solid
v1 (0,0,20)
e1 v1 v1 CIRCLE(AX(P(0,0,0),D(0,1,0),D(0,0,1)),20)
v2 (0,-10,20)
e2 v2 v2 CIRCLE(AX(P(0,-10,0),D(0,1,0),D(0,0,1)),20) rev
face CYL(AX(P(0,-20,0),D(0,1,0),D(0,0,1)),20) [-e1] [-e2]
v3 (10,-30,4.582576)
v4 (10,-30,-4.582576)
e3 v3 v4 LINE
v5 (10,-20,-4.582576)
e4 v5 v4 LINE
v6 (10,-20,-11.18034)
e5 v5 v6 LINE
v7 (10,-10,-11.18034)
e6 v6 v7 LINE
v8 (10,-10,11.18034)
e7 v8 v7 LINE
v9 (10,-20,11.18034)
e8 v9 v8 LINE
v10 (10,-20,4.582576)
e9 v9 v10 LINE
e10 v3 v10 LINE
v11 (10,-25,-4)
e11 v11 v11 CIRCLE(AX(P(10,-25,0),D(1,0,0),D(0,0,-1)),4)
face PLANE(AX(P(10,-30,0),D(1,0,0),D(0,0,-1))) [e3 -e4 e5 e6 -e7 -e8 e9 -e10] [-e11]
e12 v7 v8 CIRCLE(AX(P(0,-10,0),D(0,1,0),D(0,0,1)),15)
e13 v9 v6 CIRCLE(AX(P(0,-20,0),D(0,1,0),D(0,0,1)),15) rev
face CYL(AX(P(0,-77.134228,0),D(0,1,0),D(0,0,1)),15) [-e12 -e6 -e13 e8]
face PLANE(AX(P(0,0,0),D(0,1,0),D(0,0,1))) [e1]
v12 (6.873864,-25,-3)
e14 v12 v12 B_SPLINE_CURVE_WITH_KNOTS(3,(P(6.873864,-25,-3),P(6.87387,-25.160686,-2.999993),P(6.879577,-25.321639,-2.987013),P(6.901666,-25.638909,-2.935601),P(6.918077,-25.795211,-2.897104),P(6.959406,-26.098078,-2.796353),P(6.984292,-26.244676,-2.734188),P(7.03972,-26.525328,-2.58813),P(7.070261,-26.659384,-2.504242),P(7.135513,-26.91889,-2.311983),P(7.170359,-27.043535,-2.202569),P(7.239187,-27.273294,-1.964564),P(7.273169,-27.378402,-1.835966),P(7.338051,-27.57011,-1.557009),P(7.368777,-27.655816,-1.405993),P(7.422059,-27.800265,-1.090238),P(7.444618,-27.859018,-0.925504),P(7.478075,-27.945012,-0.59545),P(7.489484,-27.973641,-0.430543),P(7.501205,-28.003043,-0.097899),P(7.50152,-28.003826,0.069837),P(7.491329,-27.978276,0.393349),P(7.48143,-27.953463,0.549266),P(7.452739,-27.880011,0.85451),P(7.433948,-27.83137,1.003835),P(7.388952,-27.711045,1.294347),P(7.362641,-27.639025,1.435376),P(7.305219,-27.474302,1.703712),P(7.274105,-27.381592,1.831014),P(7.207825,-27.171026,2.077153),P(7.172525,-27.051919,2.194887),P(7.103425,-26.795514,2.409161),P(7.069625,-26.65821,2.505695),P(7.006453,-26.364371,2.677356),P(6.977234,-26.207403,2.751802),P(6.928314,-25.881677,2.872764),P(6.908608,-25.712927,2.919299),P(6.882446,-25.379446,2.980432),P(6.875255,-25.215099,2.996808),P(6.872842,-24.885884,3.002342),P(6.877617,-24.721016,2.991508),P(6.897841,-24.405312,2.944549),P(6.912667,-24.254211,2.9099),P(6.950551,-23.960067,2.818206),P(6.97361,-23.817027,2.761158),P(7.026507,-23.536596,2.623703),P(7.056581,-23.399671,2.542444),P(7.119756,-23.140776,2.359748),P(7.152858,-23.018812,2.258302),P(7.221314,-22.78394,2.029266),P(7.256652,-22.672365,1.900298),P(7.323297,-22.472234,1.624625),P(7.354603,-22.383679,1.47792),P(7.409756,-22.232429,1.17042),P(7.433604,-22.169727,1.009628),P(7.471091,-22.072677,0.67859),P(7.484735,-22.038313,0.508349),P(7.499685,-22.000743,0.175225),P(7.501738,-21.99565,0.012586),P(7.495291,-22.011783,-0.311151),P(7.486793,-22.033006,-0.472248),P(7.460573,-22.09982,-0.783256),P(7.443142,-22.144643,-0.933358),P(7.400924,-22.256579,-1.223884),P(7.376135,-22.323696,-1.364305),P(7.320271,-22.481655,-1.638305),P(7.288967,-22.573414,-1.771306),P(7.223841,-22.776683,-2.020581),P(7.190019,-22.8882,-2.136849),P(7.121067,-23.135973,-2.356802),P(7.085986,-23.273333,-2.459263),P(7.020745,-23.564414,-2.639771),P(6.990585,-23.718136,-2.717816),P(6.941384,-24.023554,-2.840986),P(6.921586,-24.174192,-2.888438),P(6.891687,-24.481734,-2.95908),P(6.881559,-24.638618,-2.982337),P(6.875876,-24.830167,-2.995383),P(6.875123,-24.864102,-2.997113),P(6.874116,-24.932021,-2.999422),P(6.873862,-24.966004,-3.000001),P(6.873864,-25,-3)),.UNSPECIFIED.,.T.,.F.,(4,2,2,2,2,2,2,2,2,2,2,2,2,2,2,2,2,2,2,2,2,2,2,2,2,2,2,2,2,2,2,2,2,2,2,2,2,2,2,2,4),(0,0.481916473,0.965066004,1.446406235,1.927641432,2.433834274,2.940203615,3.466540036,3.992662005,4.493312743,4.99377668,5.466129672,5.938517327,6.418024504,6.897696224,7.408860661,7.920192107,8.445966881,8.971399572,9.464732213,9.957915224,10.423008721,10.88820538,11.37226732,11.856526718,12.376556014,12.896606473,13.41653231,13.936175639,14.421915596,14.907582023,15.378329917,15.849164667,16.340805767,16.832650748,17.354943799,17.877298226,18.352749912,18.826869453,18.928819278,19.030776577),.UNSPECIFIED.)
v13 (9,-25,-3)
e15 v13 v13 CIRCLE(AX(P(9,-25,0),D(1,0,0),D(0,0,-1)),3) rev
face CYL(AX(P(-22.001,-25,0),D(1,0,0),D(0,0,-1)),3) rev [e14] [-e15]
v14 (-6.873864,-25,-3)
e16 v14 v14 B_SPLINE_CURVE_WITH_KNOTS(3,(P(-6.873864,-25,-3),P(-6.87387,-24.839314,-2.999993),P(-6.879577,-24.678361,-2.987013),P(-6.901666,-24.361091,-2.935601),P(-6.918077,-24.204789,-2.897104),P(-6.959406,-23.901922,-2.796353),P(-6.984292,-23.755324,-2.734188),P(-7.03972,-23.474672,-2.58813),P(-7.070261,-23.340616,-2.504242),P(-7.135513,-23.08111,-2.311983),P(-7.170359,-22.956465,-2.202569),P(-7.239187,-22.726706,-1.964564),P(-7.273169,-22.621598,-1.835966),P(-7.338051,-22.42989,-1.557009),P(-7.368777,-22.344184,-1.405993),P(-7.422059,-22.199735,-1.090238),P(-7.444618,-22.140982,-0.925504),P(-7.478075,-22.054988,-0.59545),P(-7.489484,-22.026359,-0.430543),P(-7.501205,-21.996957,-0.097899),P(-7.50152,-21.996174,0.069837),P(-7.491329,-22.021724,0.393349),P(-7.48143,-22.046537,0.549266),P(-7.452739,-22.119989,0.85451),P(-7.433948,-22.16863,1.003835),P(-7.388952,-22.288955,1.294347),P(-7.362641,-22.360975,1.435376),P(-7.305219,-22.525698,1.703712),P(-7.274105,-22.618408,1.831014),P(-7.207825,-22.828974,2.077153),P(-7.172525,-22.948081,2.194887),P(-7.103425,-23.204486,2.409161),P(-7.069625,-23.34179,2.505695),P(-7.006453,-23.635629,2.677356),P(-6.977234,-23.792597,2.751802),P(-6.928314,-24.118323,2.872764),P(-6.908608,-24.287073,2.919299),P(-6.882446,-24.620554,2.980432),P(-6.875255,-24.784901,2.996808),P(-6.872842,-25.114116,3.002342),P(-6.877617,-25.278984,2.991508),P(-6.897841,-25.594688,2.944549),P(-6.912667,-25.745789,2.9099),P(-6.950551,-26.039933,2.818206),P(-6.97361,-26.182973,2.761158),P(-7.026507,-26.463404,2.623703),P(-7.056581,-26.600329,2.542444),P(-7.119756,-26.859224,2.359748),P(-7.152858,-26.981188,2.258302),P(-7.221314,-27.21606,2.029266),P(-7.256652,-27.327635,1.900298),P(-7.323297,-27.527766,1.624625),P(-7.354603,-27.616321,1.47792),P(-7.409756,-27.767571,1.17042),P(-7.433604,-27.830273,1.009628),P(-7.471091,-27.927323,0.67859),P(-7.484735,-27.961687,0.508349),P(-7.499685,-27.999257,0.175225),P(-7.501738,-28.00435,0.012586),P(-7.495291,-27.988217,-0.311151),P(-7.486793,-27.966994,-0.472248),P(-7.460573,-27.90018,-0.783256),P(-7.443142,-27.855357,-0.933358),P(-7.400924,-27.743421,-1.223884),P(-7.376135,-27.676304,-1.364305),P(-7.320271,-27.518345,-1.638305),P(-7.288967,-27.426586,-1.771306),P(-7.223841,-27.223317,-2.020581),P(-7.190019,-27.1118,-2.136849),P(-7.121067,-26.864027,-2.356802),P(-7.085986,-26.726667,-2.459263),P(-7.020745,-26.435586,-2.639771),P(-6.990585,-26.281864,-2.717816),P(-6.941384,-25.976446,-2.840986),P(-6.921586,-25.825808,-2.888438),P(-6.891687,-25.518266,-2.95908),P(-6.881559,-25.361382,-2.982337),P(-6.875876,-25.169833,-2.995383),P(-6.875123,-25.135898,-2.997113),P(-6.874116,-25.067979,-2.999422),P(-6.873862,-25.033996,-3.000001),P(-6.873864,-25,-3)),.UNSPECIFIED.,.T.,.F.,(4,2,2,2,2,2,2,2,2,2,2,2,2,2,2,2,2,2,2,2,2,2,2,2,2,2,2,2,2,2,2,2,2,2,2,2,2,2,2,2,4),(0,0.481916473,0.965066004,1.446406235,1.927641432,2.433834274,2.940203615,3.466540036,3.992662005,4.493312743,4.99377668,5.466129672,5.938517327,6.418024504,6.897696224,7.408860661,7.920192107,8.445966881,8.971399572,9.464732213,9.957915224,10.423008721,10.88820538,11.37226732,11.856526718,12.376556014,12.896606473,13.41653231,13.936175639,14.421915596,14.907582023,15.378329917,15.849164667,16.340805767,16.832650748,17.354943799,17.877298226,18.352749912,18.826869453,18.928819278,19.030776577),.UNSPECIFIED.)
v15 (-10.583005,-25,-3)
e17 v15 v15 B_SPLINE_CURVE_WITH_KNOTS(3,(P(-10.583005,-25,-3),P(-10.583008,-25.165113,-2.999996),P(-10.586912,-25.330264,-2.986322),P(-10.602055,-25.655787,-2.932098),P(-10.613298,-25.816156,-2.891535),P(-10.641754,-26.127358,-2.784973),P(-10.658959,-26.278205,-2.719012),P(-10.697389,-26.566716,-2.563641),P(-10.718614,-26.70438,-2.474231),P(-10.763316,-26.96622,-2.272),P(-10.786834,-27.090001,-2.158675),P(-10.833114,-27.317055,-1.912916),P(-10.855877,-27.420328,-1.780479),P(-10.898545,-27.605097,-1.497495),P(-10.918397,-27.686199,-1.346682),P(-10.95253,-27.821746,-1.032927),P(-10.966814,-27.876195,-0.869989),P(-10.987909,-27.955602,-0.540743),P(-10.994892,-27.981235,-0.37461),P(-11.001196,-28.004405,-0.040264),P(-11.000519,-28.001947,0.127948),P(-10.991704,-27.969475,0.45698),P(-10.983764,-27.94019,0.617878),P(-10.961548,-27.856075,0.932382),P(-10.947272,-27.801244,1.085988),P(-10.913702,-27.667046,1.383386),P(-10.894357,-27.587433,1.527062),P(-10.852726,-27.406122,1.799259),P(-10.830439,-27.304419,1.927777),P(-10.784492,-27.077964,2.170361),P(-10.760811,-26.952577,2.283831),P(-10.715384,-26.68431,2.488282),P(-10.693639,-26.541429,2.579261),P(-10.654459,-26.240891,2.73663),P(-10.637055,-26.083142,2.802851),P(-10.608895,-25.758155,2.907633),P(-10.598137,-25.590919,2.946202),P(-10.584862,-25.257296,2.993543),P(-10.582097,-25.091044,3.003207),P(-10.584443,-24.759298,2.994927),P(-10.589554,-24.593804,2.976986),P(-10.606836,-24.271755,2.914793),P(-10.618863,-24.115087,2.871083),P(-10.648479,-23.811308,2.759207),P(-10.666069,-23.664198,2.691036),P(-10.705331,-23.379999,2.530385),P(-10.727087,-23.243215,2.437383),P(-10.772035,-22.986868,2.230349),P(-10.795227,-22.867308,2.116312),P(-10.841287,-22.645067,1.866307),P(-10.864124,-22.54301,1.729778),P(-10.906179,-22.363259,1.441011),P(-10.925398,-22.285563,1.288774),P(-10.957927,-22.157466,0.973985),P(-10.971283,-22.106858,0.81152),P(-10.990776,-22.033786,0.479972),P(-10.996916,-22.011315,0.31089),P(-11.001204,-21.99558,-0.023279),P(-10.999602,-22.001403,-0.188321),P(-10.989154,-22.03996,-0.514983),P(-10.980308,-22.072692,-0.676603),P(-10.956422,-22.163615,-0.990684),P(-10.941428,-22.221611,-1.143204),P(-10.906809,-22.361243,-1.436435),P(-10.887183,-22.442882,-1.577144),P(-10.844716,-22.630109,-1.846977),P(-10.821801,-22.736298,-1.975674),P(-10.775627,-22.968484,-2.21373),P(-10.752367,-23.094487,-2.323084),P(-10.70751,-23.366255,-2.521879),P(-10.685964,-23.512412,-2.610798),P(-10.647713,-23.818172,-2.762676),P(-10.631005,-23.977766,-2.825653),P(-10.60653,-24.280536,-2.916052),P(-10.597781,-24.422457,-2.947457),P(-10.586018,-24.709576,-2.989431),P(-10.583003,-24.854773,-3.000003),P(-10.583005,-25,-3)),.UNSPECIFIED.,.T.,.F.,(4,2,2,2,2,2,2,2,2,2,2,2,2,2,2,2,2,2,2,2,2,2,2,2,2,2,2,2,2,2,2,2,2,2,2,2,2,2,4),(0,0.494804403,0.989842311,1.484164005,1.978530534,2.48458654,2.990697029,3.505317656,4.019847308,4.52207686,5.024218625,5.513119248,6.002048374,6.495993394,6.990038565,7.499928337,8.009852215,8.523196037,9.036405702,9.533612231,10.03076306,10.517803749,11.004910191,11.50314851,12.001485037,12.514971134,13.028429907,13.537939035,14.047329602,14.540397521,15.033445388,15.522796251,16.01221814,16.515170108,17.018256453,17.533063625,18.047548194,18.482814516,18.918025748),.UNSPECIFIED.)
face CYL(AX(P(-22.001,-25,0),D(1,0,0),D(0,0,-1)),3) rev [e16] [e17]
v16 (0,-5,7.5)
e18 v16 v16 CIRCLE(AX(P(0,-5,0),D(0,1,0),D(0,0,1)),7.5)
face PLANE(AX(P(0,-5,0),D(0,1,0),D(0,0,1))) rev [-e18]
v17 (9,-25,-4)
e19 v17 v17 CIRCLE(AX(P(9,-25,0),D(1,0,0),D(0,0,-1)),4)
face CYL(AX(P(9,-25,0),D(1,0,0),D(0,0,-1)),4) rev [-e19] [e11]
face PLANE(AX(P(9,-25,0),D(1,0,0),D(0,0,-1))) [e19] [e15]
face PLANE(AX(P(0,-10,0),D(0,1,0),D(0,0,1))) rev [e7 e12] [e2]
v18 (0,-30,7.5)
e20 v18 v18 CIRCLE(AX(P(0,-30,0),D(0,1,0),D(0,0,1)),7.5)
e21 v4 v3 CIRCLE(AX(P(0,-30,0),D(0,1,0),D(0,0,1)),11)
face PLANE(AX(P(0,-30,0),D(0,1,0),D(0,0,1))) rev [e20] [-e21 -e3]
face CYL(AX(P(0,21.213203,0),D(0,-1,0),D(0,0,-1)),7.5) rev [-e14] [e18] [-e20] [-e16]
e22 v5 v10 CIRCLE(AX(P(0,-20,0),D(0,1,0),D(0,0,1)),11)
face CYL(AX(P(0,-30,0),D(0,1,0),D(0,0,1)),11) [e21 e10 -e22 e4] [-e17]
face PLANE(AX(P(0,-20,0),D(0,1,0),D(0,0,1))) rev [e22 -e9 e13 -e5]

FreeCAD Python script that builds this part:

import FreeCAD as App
import Part
import Sketcher
from FreeCAD import Vector
Q = App.Units.Quantity

doc = App.newDocument("Part")
params = doc.addObject("Spreadsheet::Sheet", "Params")
for row, (alias, value) in enumerate([
    ("sketch1_diameter", "40 mm"),
    ("pad1_length", "20 mm"),
    ("sketch2_diameter", "30 mm"),
    ("sketch2_width", "54 mm"),
    ("pocket1_length", "10 mm"),
    ("sketch3_diameter", "22 mm"),
    ("pad2_length", "10 mm"),
    ("sketch4_width", "10 mm"),
    ("pocket2_length", "20 mm"),
    ("sketch5_diameter", "15 mm"),
    ("pocket3_length", "25 mm"),
    ("sketch6_diameter", "6 mm"),
    ("pocket4_length", "23.674794 mm"),
    ("sketch7_diameter", "8 mm"),
    ("pocket5_length", "1 mm"),
], start=1):
    params.set(f"A{row}", alias)
    params.set(f"B{row}", "=" + value)
    params.setAlias(f"B{row}", alias)

body = doc.addObject("PartDesign::Body", "Body")

# Sketch on XZ plane
sketch1 = doc.addObject("Sketcher::SketchObject", "Sketch")
body.addObject(sketch1)
sketch1.AttachmentSupport = (doc.XZ_Plane, [""])
sketch1.MapMode = "FlatFace"
sketch1.addGeometry(Part.Circle(Vector(0, 0, 0), Vector(0, 0, 1), 20), False)
sketch1.addConstraint(Sketcher.Constraint("Coincident", 0, 3, -1, 1))
sketch1.addConstraint(Sketcher.Constraint("Diameter", 0, Q("40 mm")))
sketch1.setExpression("Constraints[1]", "Params.sketch1_diameter")
pad1 = doc.addObject("PartDesign::Pad", "Pad")
body.addObject(pad1)
pad1.Profile = sketch1
pad1.setExpression("Length", "Params.pad1_length")

# Sketch on XZ plane
sketch2 = doc.addObject("Sketcher::SketchObject", "Sketch001")
body.addObject(sketch2)
sketch2.AttachmentSupport = (doc.XZ_Plane, [""])
sketch2.MapMode = "FlatFace"
sketch2.AttachmentOffset = App.Placement(Vector(0, 0, 10), App.Rotation())
sketch2.addGeometry(Part.LineSegment(Vector(-27, -27, 0), Vector(-27, 27, 0)), False)
sketch2.addGeometry(Part.LineSegment(Vector(-27, 27, 0), Vector(27, 27, 0)), False)
sketch2.addGeometry(Part.LineSegment(Vector(27, 27, 0), Vector(27, -27, 0)), False)
sketch2.addGeometry(Part.LineSegment(Vector(27, -27, 0), Vector(-27, -27, 0)), False)
sketch2.addGeometry(Part.Circle(Vector(0, 0, 0), Vector(0, 0, 1), 15), False)
sketch2.addConstraint(Sketcher.Constraint("Coincident", 0, 2, 1, 1))
sketch2.addConstraint(Sketcher.Constraint("Coincident", 1, 2, 2, 1))
sketch2.addConstraint(Sketcher.Constraint("Coincident", 2, 2, 3, 1))
sketch2.addConstraint(Sketcher.Constraint("Coincident", 3, 2, 0, 1))
sketch2.addConstraint(Sketcher.Constraint("Vertical", 0))
sketch2.addConstraint(Sketcher.Constraint("Horizontal", 1))
sketch2.addConstraint(Sketcher.Constraint("Vertical", 2))
sketch2.addConstraint(Sketcher.Constraint("Horizontal", 3))
sketch2.addConstraint(Sketcher.Constraint("Coincident", 4, 3, -1, 1))
sketch2.addConstraint(Sketcher.Constraint("Symmetric", 0, 2, 2, 2, -1, 1))
sketch2.addConstraint(Sketcher.Constraint("Equal", 3, 0))
sketch2.addConstraint(Sketcher.Constraint("Diameter", 4, Q("30 mm")))
sketch2.addConstraint(Sketcher.Constraint("DistanceX", 1, 1, 1, 2, Q("54 mm")))
sketch2.setExpression("Constraints[11]", "Params.sketch2_diameter")
sketch2.setExpression("Constraints[12]", "Params.sketch2_width")
pocket1 = doc.addObject("PartDesign::Pocket", "Pocket")
body.addObject(pocket1)
pocket1.Profile = sketch2
pocket1.setExpression("Length", "Params.pocket1_length")
pocket1.Reversed = True

# Sketch on XZ plane
sketch3 = doc.addObject("Sketcher::SketchObject", "Sketch002")
body.addObject(sketch3)
sketch3.AttachmentSupport = (doc.XZ_Plane, [""])
sketch3.MapMode = "FlatFace"
sketch3.AttachmentOffset = App.Placement(Vector(0, 0, 20), App.Rotation())
sketch3.addGeometry(Part.Circle(Vector(0, 0, 0), Vector(0, 0, 1), 11), False)
sketch3.addConstraint(Sketcher.Constraint("Coincident", 0, 3, -1, 1))
sketch3.addConstraint(Sketcher.Constraint("Diameter", 0, Q("22 mm")))
sketch3.setExpression("Constraints[1]", "Params.sketch3_diameter")
pad2 = doc.addObject("PartDesign::Pad", "Pad001")
body.addObject(pad2)
pad2.Profile = sketch3
pad2.setExpression("Length", "Params.pad2_length")

# Sketch on XZ plane
sketch4 = doc.addObject("Sketcher::SketchObject", "Sketch003")
body.addObject(sketch4)
sketch4.AttachmentSupport = (doc.XZ_Plane, [""])
sketch4.MapMode = "FlatFace"
sketch4.AttachmentOffset = App.Placement(Vector(0, 0, 30), App.Rotation())
sketch4.addGeometry(Part.LineSegment(Vector(10, -11, 0), Vector(10, 11, 0)), False)
sketch4.addGeometry(Part.LineSegment(Vector(10, 11, 0), Vector(20, 11, 0)), False)
sketch4.addGeometry(Part.LineSegment(Vector(20, 11, 0), Vector(20, -11, 0)), False)
sketch4.addGeometry(Part.LineSegment(Vector(20, -11, 0), Vector(10, -11, 0)), False)
sketch4.addConstraint(Sketcher.Constraint("Coincident", 0, 2, 1, 1))
sketch4.addConstraint(Sketcher.Constraint("Coincident", 1, 2, 2, 1))
sketch4.addConstraint(Sketcher.Constraint("Coincident", 2, 2, 3, 1))
sketch4.addConstraint(Sketcher.Constraint("Coincident", 3, 2, 0, 1))
sketch4.addConstraint(Sketcher.Constraint("Vertical", 0))
sketch4.addConstraint(Sketcher.Constraint("Horizontal", 1))
sketch4.addConstraint(Sketcher.Constraint("Vertical", 2))
sketch4.addConstraint(Sketcher.Constraint("Horizontal", 3))
sketch4.addConstraint(Sketcher.Constraint("DistanceX", 1, 1, 1, 2, Q("10 mm")))
sketch4.addConstraint(Sketcher.Constraint("DistanceX", -1, 1, 0, 2, Q("10 mm")))
sketch4.addConstraint(Sketcher.Constraint("DistanceY", 0, 1, 0, 2, Q("22.36068 mm")))
sketch4.addConstraint(Sketcher.Constraint("DistanceY", -1, 1, 0, 2, Q("11.18034 mm")))
sketch4.setExpression("Constraints[8]", "Params.sketch4_width")
pocket2 = doc.addObject("PartDesign::Pocket", "Pocket001")
body.addObject(pocket2)
pocket2.Profile = sketch4
pocket2.setExpression("Length", "Params.pocket2_length")

# Sketch on XZ plane
sketch5 = doc.addObject("Sketcher::SketchObject", "Sketch004")
body.addObject(sketch5)
sketch5.AttachmentSupport = (doc.XZ_Plane, [""])
sketch5.MapMode = "FlatFace"
sketch5.AttachmentOffset = App.Placement(Vector(0, 0, 30), App.Rotation())
sketch5.addGeometry(Part.Circle(Vector(0, 0, 0), Vector(0, 0, 1), 8), False)
sketch5.addConstraint(Sketcher.Constraint("Coincident", 0, 3, -1, 1))
sketch5.addConstraint(Sketcher.Constraint("Diameter", 0, Q("15 mm")))
sketch5.setExpression("Constraints[1]", "Params.sketch5_diameter")
pocket3 = doc.addObject("PartDesign::Pocket", "Pocket002")
body.addObject(pocket3)
pocket3.Profile = sketch5
pocket3.setExpression("Length", "Params.pocket3_length")

# Sketch on YZ plane
sketch6 = doc.addObject("Sketcher::SketchObject", "Sketch005")
body.addObject(sketch6)
sketch6.AttachmentSupport = (doc.YZ_Plane, [""])
sketch6.MapMode = "FlatFace"
sketch6.AttachmentOffset = App.Placement(Vector(0, 0, 10), App.Rotation())
sketch6.addGeometry(Part.Circle(Vector(-25, 0, 0), Vector(0, 0, 1), 3), False)
sketch6.addConstraint(Sketcher.Constraint("PointOnObject", 0, 3, -1))
sketch6.addConstraint(Sketcher.Constraint("Diameter", 0, Q("6 mm")))
sketch6.addConstraint(Sketcher.Constraint("DistanceX", 0, 3, -1, 1, Q("25 mm")))
sketch6.setExpression("Constraints[1]", "Params.sketch6_diameter")
pocket4 = doc.addObject("PartDesign::Pocket", "Pocket003")
body.addObject(pocket4)
pocket4.Profile = sketch6
pocket4.setExpression("Length", "Params.pocket4_length")

# Sketch on YZ plane
sketch7 = doc.addObject("Sketcher::SketchObject", "Sketch006")
body.addObject(sketch7)
sketch7.AttachmentSupport = (doc.YZ_Plane, [""])
sketch7.MapMode = "FlatFace"
sketch7.AttachmentOffset = App.Placement(Vector(0, 0, 10), App.Rotation())
sketch7.addGeometry(Part.Circle(Vector(-25, 0, 0), Vector(0, 0, 1), 4), False)
sketch7.addConstraint(Sketcher.Constraint("PointOnObject", 0, 3, -1))
sketch7.addConstraint(Sketcher.Constraint("Diameter", 0, Q("8 mm")))
sketch7.addConstraint(Sketcher.Constraint("DistanceX", 0, 3, -1, 1, Q("25 mm")))
sketch7.setExpression("Constraints[1]", "Params.sketch7_diameter")
pocket5 = doc.addObject("PartDesign::Pocket", "Pocket004")
body.addObject(pocket5)
pocket5.Profile = sketch7
pocket5.setExpression("Length", "Params.pocket5_length")

doc.recompute()
